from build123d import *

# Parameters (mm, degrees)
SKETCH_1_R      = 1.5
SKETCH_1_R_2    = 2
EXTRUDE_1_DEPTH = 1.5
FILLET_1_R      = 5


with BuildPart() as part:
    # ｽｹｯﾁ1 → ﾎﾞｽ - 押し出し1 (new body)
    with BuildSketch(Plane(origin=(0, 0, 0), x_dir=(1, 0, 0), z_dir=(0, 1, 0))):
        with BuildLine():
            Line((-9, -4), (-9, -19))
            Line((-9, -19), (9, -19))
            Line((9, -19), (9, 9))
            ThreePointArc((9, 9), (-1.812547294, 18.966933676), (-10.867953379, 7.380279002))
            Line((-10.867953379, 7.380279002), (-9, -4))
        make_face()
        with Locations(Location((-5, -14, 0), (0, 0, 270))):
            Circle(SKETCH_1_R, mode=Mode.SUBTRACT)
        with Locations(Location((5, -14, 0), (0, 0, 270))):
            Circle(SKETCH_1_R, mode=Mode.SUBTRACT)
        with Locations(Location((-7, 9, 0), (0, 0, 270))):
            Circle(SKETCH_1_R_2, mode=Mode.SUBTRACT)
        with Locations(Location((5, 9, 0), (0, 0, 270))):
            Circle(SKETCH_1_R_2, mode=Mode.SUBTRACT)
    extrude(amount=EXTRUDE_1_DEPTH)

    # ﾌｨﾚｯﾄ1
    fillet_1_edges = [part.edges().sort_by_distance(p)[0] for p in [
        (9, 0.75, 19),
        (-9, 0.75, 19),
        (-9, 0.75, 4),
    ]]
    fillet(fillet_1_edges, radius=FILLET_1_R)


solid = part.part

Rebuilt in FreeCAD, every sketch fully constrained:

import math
import FreeCAD as App
import Part
import Sketcher
Q = App.Units.Quantity


def edges_at(feature, points):
    """Names of the edges that pass closest to the given points."""
    edges = feature.Shape.Edges
    near = lambda p: min(range(len(edges)), key=lambda i: edges[i].distToShape(Part.Vertex(*p))[0])
    return sorted({f"Edge{near(p) + 1}" for p in points})

doc = App.newDocument("Part")
params = doc.addObject("Spreadsheet::Sheet", "Params")
for row, (alias, value) in enumerate([
    ("sketch1_diameter", "3 mm"),
    ("sketch1_diameter2", "4 mm"),
    ("sketch1_radius", "10 mm"),
    ("sketch1_width", "18 mm"),
    ("sketch1_height", "15 mm"),
    ("pad1_length", "1.5 mm"),
    ("fillet_radius", "5 mm"),
], start=1):
    params.set(f"A{row}", alias)
    params.set(f"B{row}", "=" + value)
    params.setAlias(f"B{row}", alias)

body = doc.addObject("PartDesign::Body", "Body")

sketch1 = body.newObject("Sketcher::SketchObject", "Sketch")
sketch1.AttachmentSupport = (doc.getObject("XZ_Plane"), [""])
sketch1.MapMode = "FlatFace"
sketch1.addGeometry([
    Part.LineSegment(App.Vector(-9, 4, 0), App.Vector(-9, 19, 0)),
    Part.LineSegment(App.Vector(-9, 19, 0), App.Vector(9, 19, 0)),
    Part.LineSegment(App.Vector(9, 19, 0), App.Vector(9, -9, 0)),
    Part.ArcOfCircle(Part.Circle(App.Vector(-1, -9, 0), App.Vector(0, 0, 1), 10), math.radians(171), math.radians(360)),
    Part.LineSegment(App.Vector(-10.9, -7.4, 0), App.Vector(-9, 4, 0)),
    Part.Circle(App.Vector(-5, 14, 0), App.Vector(0, 0, 1), 1.5),
    Part.Circle(App.Vector(5, 14, 0), App.Vector(0, 0, 1), 1.5),
    Part.Circle(App.Vector(-7, -9, 0), App.Vector(0, 0, 1), 2),
    Part.Circle(App.Vector(5, -9, 0), App.Vector(0, 0, 1), 2),
], False)
sketch1.addConstraint([
    Sketcher.Constraint("Coincident", 0, 2, 1, 1),
    Sketcher.Constraint("Coincident", 1, 2, 2, 1),
    Sketcher.Constraint("Tangent", 2, 2, 3, 2),
    Sketcher.Constraint("Tangent", 3, 1, 4, 1),
    Sketcher.Constraint("Coincident", 4, 2, 0, 1),
    Sketcher.Constraint("Vertical", 0),
    Sketcher.Constraint("Horizontal", 1),
    Sketcher.Constraint("Vertical", 2),
    Sketcher.Constraint("Equal", 5, 6),
    Sketcher.Constraint("Equal", 7, 8),
    Sketcher.Constraint("Symmetric", 5, 3, 6, 3, -2),
    Sketcher.Constraint("Horizontal", 3, 3, 7, 3),
    Sketcher.Constraint("Horizontal", 7, 3, 8, 3),
    Sketcher.Constraint("Vertical", 6, 3, 8, 3),
    Sketcher.Constraint("Diameter", 5, Q("3 mm")),
    Sketcher.Constraint("Diameter", 7, Q("4 mm")),
    Sketcher.Constraint("Radius", 3, Q("10 mm")),
    Sketcher.Constraint("DistanceX", 1, 1, 1, 2, Q("18 mm")),
    Sketcher.Constraint("DistanceY", 0, 1, 0, 2, Q("15 mm")),
    Sketcher.Constraint("DistanceY", 2, 2, 2, 1, Q("28 mm")),
    Sketcher.Constraint("DistanceX", 3, 3, -1, 1, Q("1 mm")),
    Sketcher.Constraint("DistanceY", 3, 3, -1, 1, Q("9 mm")),
    Sketcher.Constraint("DistanceX", 5, 3, -1, 1, Q("5 mm")),
    Sketcher.Constraint("DistanceY", -1, 1, 5, 3, Q("14 mm")),
    Sketcher.Constraint("DistanceX", 7, 3, -1, 1, Q("7 mm")),
])
sketch1.setExpression("Constraints[14]", "Params.sketch1_diameter")
sketch1.setExpression("Constraints[15]", "Params.sketch1_diameter2")
sketch1.setExpression("Constraints[16]", "Params.sketch1_radius")
sketch1.setExpression("Constraints[17]", "Params.sketch1_width")
sketch1.setExpression("Constraints[18]", "Params.sketch1_height")
pad1 = body.newObject("PartDesign::Pad", "Pad")
pad1.Profile = sketch1
pad1.setExpression("Length", "Params.pad1_length")
pad1.Reversed = True
doc.recompute()

fillet = body.newObject("PartDesign::Fillet", "Fillet")
fillet.Base = (pad1, edges_at(pad1, [(9, 0.75, 19), (-9, 0.75, 19), (-9, 0.75, 4)]))
fillet.setExpression("Radius", "Params.fillet_radius")

doc.recompute()
